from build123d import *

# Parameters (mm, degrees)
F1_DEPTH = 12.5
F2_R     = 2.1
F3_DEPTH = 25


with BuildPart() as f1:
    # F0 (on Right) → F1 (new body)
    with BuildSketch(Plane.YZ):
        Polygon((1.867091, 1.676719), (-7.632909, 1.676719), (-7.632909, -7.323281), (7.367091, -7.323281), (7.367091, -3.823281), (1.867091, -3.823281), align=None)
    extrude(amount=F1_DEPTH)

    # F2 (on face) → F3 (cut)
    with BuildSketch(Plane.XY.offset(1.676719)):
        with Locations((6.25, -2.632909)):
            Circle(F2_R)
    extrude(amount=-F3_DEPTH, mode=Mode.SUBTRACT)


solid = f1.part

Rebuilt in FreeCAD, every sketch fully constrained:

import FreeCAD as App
import Part
import Sketcher
Q = App.Units.Quantity


def add_polygon(sketch, points):
    """Adds a closed chain of lines whose ends are joined by coincident constraints."""
    first, n = sketch.GeometryCount, len(points)
    for a, b in zip(points, points[1:] + points[:1]):
        sketch.addGeometry(Part.LineSegment(App.Vector(*a, 0), App.Vector(*b, 0)), False)
    for i in range(n):
        sketch.addConstraint(Sketcher.Constraint("Coincident", first + i, 2, first + (i + 1) % n, 1))

doc = App.newDocument("Part")
body = doc.addObject("PartDesign::Body", "Body")

# Sketch on YZ plane
sketch1 = body.newObject("Sketcher::SketchObject", "Sketch")
sketch1.AttachmentSupport = (doc.getObject("YZ_Plane"), [""])
sketch1.MapMode = "FlatFace"
add_polygon(sketch1, [(1.9, 1.7), (-7.6, 1.7), (-7.6, -7.3), (7.4, -7.3), (7.4, -3.8), (1.9, -3.8)])  # lines 0-5
sketch1.addConstraint([
    Sketcher.Constraint("Horizontal", 0),
    Sketcher.Constraint("Vertical", 1),
    Sketcher.Constraint("Horizontal", 2),
    Sketcher.Constraint("Vertical", 3),
    Sketcher.Constraint("Horizontal", 4),
    Sketcher.Constraint("Vertical", 5),
    Sketcher.Constraint("Equal", 4, 5),
    Sketcher.Constraint("DistanceX", 2, 1, 2, 2, Q("15 mm")),
    Sketcher.Constraint("DistanceY", 1, 2, 1, 1, Q("9 mm")),
    Sketcher.Constraint("DistanceX", 0, 2, 0, 1, Q("9.5 mm")),
    Sketcher.Constraint("DistanceX", 0, 2, -1, 1, Q("7.632909 mm")),
    Sketcher.Constraint("DistanceY", -1, 1, 0, 2, Q("1.676719 mm")),
])
pad1 = body.newObject("PartDesign::Pad", "Pad")
pad1.Profile = sketch1
pad1.Length = 12.5

# Sketch on XY plane
sketch2 = body.newObject("Sketcher::SketchObject", "Sketch001")
sketch2.AttachmentSupport = (doc.getObject("XY_Plane"), [""])
sketch2.MapMode = "FlatFace"
sketch2.AttachmentOffset = App.Placement(App.Vector(0, 0, 1.676719), App.Rotation())
sketch2.addGeometry(Part.Circle(App.Vector(6.2, -2.6, 0), App.Vector(0, 0, 1), 2.1), False)
sketch2.addConstraint([
    Sketcher.Constraint("Diameter", 0, Q("4.2 mm")),
    Sketcher.Constraint("DistanceX", -1, 1, 0, 3, Q("6.25 mm")),
    Sketcher.Constraint("DistanceY", 0, 3, -1, 1, Q("2.632909 mm")),
])
pocket1 = body.newObject("PartDesign::Pocket", "Pocket")
pocket1.Profile = sketch2
pocket1.Length = 25

doc.recompute()
